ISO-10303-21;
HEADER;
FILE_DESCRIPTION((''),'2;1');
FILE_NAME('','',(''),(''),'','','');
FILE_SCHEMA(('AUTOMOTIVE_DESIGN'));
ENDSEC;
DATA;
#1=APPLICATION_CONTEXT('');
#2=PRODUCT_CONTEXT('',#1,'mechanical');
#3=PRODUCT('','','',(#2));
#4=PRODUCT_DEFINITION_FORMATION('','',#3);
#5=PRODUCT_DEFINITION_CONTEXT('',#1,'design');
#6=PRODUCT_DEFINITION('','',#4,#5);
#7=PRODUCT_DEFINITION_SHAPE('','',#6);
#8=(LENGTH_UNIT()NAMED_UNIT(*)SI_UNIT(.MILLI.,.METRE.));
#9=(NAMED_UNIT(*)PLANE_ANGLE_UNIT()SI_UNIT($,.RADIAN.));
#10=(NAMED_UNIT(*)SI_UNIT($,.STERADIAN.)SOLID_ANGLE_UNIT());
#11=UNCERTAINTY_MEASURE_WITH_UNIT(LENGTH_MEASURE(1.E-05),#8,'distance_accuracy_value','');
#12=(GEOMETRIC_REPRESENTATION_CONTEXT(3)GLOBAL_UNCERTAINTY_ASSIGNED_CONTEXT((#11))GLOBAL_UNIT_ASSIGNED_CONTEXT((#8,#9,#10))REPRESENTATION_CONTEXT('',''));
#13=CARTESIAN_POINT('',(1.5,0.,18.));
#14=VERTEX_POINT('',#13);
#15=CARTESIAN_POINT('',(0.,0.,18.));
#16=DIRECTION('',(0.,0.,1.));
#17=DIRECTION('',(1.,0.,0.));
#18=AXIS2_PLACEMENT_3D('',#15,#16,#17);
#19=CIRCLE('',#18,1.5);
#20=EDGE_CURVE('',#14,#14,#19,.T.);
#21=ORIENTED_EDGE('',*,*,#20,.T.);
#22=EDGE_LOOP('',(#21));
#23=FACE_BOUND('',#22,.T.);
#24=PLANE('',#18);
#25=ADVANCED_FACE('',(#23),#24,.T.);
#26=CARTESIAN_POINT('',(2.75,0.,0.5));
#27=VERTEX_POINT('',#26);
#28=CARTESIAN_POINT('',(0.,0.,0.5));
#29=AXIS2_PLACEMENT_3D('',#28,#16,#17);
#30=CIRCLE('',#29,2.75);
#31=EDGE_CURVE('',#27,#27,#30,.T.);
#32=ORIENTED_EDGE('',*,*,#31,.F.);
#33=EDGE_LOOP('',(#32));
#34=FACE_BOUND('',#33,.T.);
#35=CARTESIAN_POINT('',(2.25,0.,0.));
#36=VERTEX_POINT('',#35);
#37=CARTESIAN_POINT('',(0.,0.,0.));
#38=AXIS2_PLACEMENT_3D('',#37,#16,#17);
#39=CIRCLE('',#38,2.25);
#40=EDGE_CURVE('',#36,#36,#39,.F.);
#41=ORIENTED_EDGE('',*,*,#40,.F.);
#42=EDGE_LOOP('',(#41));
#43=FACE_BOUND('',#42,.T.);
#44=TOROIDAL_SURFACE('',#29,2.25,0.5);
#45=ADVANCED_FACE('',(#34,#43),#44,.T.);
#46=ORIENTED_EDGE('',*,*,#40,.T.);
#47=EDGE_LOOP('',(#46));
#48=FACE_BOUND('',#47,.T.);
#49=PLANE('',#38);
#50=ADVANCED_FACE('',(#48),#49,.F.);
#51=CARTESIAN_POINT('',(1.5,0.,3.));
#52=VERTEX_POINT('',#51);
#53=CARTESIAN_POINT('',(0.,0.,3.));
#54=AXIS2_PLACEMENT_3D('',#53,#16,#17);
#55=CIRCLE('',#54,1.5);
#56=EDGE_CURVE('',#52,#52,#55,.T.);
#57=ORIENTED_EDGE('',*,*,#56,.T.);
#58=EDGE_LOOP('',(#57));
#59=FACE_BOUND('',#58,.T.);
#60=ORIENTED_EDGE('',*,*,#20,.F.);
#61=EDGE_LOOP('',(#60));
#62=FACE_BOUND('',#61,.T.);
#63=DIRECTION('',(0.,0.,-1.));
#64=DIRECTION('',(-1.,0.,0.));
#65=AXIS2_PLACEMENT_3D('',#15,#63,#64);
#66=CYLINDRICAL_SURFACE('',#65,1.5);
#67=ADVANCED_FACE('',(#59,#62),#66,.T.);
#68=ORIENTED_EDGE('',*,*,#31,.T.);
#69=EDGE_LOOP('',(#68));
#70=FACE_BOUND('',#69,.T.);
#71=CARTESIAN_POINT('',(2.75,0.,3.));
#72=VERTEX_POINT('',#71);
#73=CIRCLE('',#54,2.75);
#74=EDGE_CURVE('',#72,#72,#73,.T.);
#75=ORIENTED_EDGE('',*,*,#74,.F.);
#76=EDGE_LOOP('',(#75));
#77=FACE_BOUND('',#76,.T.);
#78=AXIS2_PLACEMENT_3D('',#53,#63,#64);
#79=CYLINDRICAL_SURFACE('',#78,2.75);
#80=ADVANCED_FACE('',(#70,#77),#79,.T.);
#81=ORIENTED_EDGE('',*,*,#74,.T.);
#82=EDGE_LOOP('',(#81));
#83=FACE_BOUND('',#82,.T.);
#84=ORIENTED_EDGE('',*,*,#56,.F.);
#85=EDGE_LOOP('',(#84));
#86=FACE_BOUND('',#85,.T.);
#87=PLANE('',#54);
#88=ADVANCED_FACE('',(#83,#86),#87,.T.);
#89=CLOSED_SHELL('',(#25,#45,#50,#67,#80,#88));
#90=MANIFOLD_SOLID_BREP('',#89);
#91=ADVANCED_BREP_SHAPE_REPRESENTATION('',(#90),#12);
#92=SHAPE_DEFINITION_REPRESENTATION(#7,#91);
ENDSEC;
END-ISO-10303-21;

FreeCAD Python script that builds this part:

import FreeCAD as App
import Part
import Sketcher

V = App.Vector
Q = App.Units.Quantity


def edges_at(feature, points):
    """Names of the edges that pass closest to the given points."""
    edges = feature.Shape.Edges
    near = lambda p: min(range(len(edges)), key=lambda i: edges[i].distToShape(Part.Vertex(*p))[0])
    return sorted({f"Edge{near(p) + 1}" for p in points})

doc = App.newDocument("Part")
body = doc.addObject("PartDesign::Body", "Body")

# Sketch on XY plane
sketch1 = doc.addObject("Sketcher::SketchObject", "Sketch")
body.addObject(sketch1)
sketch1.AttachmentSupport = (doc.XY_Plane, [""])
sketch1.MapMode = "FlatFace"
sketch1.addGeometry(Part.Circle(V(0, 0, 0), V(0, 0, 1), 2.75), False)
sketch1.addConstraint(Sketcher.Constraint("Coincident", 0, 3, -1, 1))
sketch1.addConstraint(Sketcher.Constraint("Diameter", 0, Q("5.5 mm")))
pad1 = doc.addObject("PartDesign::Pad", "Pad")
body.addObject(pad1)
pad1.Profile = sketch1
pad1.Length = 3

# Sketch on XY plane
sketch2 = doc.addObject("Sketcher::SketchObject", "Sketch001")
body.addObject(sketch2)
sketch2.AttachmentSupport = (doc.XY_Plane, [""])
sketch2.MapMode = "FlatFace"
sketch2.AttachmentOffset = App.Placement(V(0, 0, 3), App.Rotation())
sketch2.addGeometry(Part.Circle(V(0, 0, 0), V(0, 0, 1), 1.5), False)
sketch2.addConstraint(Sketcher.Constraint("Coincident", 0, 3, -1, 1))
sketch2.addConstraint(Sketcher.Constraint("Diameter", 0, Q("3 mm")))
pad2 = doc.addObject("PartDesign::Pad", "Pad001")
body.addObject(pad2)
pad2.Profile = sketch2
pad2.Length = 15
doc.recompute()

fillet = doc.addObject("PartDesign::Fillet", "Fillet")
body.addObject(fillet)
fillet.Base = (pad2, edges_at(pad2, [(-2.75, 0, 0)]))
fillet.Radius = 0.5

doc.recompute()
